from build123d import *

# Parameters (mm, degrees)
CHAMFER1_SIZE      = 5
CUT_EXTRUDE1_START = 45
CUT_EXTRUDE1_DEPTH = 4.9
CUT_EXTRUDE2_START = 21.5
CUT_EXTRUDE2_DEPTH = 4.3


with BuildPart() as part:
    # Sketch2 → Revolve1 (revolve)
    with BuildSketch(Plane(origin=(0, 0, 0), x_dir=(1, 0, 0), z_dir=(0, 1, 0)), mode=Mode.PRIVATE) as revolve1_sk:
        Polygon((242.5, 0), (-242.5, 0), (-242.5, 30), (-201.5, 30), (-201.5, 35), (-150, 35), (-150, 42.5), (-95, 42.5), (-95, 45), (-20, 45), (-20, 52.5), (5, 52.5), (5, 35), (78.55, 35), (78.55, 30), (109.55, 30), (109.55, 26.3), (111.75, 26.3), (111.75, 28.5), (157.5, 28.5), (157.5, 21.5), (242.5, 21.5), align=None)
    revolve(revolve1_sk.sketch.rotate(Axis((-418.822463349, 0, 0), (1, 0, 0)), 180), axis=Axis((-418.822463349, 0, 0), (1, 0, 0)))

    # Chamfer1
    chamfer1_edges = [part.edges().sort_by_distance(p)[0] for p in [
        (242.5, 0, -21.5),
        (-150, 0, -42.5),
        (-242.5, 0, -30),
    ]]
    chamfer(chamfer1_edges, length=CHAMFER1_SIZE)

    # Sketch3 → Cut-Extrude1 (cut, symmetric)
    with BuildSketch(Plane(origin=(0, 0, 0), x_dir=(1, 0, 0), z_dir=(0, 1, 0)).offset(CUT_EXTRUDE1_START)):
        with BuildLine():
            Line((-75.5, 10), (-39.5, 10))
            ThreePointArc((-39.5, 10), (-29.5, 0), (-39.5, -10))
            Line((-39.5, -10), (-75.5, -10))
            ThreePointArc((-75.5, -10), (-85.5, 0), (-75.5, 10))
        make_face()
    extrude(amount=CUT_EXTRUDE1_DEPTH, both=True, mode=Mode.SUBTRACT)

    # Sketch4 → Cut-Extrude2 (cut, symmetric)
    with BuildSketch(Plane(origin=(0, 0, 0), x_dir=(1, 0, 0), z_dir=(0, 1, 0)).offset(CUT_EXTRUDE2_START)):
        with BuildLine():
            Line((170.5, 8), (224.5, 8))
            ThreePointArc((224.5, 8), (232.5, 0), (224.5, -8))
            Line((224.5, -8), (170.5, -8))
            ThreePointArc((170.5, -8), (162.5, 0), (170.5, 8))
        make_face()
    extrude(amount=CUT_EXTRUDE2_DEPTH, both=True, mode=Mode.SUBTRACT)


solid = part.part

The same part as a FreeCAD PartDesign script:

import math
import FreeCAD as App
import Part
import Sketcher

V = App.Vector


def edges_at(feature, points):
    """Names of the edges that pass closest to the given points."""
    edges = feature.Shape.Edges
    near = lambda p: min(range(len(edges)), key=lambda i: edges[i].distToShape(Part.Vertex(*p))[0])
    return sorted({f"Edge{near(p) + 1}" for p in points})


def add_polygon(sketch, points):
    """Adds a closed chain of lines whose ends are joined by coincident constraints."""
    first, n = sketch.GeometryCount, len(points)
    for a, b in zip(points, points[1:] + points[:1]):
        sketch.addGeometry(Part.LineSegment(App.Vector(*a, 0), App.Vector(*b, 0)), False)
    for i in range(n):
        sketch.addConstraint(Sketcher.Constraint("Coincident", first + i, 2, first + (i + 1) % n, 1))

doc = App.newDocument("Part")
body = doc.addObject("PartDesign::Body", "Body")

# Sketch on XZ plane
sketch1 = body.newObject("Sketcher::SketchObject", "Sketch")
sketch1.AttachmentSupport = (doc.getObject("XZ_Plane"), [""])
sketch1.MapMode = "FlatFace"
add_polygon(sketch1, [(-242.5, 0), (242.5, 0), (242.5, -21.5), (157.5, -21.5), (157.5, -28.5), (111.8, -28.5), (111.8, -26.3), (109.5, -26.3), (109.5, -30), (78.5, -30), (78.5, -35), (5, -35), (5, -52.5), (-20, -52.5), (-20, -45), (-95, -45), (-95, -42.5), (-150, -42.5), (-150, -35), (-201.5, -35), (-201.5, -30), (-242.5, -30)])  # lines 0-21
sketch1.addConstraint([
    Sketcher.Constraint("Horizontal", 0),
    Sketcher.Constraint("Vertical", 1),
    Sketcher.Constraint("Horizontal", 2),
    Sketcher.Constraint("Vertical", 3),
    Sketcher.Constraint("Horizontal", 4),
    Sketcher.Constraint("Vertical", 5),
    Sketcher.Constraint("Horizontal", 6),
    Sketcher.Constraint("Vertical", 7),
    Sketcher.Constraint("Horizontal", 8),
    Sketcher.Constraint("Vertical", 9),
    Sketcher.Constraint("Horizontal", 10),
    Sketcher.Constraint("Vertical", 11),
    Sketcher.Constraint("Horizontal", 12),
    Sketcher.Constraint("Vertical", 13),
    Sketcher.Constraint("Horizontal", 14),
    Sketcher.Constraint("Vertical", 15),
    Sketcher.Constraint("Horizontal", 16),
    Sketcher.Constraint("Vertical", 17),
    Sketcher.Constraint("Horizontal", 18),
    Sketcher.Constraint("Vertical", 19),
    Sketcher.Constraint("Horizontal", 20),
    Sketcher.Constraint("Vertical", 21),
    Sketcher.Constraint("Symmetric", 0, 2, 21, 2, -1, 1),
    Sketcher.Constraint("Horizontal", 10, 2, 17, 2),
    Sketcher.Constraint("Horizontal", 8, 2, 19, 2),
    Sketcher.Constraint("Equal", 6, 5),
    Sketcher.Constraint("Equal", 13, 17),
    Sketcher.Constraint("DistanceX", 0, 1, 0, 2, 485.0),
    Sketcher.Constraint("DistanceX", 2, 2, 2, 1, 85.0),
    Sketcher.Constraint("DistanceX", 8, 2, 8, 1, 31.0),
    Sketcher.Constraint("DistanceX", 12, 2, 12, 1, 25.0),
    Sketcher.Constraint("DistanceX", 14, 2, 14, 1, 75.0),
    Sketcher.Constraint("DistanceX", 16, 2, 16, 1, 55.0),
    Sketcher.Constraint("DistanceX", 20, 2, 20, 1, 41.0),
    Sketcher.Constraint("DistanceY", 3, 2, 3, 1, 7.0),
    Sketcher.Constraint("DistanceY", 9, 2, 9, 1, 5.0),
    Sketcher.Constraint("DistanceY", 21, 1, 21, 2, 30.0),
    Sketcher.Constraint("DistanceX", 6, 2, 6, 1, 2.2),
    Sketcher.Constraint("DistanceX", 18, 2, 18, 1, 51.5),
    Sketcher.Constraint("DistanceY", 1, 2, 1, 1, 21.5),
    Sketcher.Constraint("DistanceY", 11, 2, 11, 1, 17.5),
    Sketcher.Constraint("DistanceY", 13, 1, 13, 2, 7.5),
    Sketcher.Constraint("DistanceX", 4, 2, 4, 1, 45.75),
])
revolution = body.newObject("PartDesign::Revolution", "Revolution")
revolution.Profile = sketch1
revolution.ReferenceAxis = (sketch1, ["H_Axis"])
revolution.Angle = 360
doc.recompute()

chamfer = body.newObject("PartDesign::Chamfer", "Chamfer")
chamfer.Base = (revolution, edges_at(revolution, [(242.5, 0, -21.5), (-150, 0, -42.5), (-242.5, 0, -30)]))
chamfer.Size = 5

# Sketch on XZ plane
sketch2 = body.newObject("Sketcher::SketchObject", "Sketch001")
sketch2.AttachmentSupport = (doc.getObject("XZ_Plane"), [""])
sketch2.MapMode = "FlatFace"
sketch2.AttachmentOffset = App.Placement(V(0, 0, -45), App.Rotation())
sketch2.addGeometry([
    Part.LineSegment(V(-40, -10, 0), V(-76, -10, 0)),
    Part.ArcOfCircle(Part.Circle(V(-76, 0, 0), V(0, 0, 1), 10), math.radians(90), math.radians(270)),
    Part.LineSegment(V(-76, 10, 0), V(-40, 10, 0)),
    Part.ArcOfCircle(Part.Circle(V(-40, 0, 0), V(0, 0, 1), 10), math.radians(-90), math.radians(90)),
], False)
sketch2.addConstraint([
    Sketcher.Constraint("Tangent", 0, 2, 1, 2),
    Sketcher.Constraint("Tangent", 1, 1, 2, 1),
    Sketcher.Constraint("Tangent", 2, 2, 3, 2),
    Sketcher.Constraint("Tangent", 3, 1, 0, 1),
    Sketcher.Constraint("Horizontal", 0),
    Sketcher.Constraint("Horizontal", 2),
    Sketcher.Constraint("PointOnObject", 1, 3, -1),
    Sketcher.Constraint("Radius", 1, 10.0),
    Sketcher.Constraint("DistanceX", 0, 2, 0, 1, 36.0),
    Sketcher.Constraint("DistanceX", 1, 3, -1, 1, 75.5),
])
pocket1 = body.newObject("PartDesign::Pocket", "Pocket")
pocket1.Profile = sketch2
pocket1.Length = 9.8
pocket1.Midplane = True

# Sketch on XZ plane
sketch3 = body.newObject("Sketcher::SketchObject", "Sketch002")
sketch3.AttachmentSupport = (doc.getObject("XZ_Plane"), [""])
sketch3.MapMode = "FlatFace"
sketch3.AttachmentOffset = App.Placement(V(0, 0, -21.5), App.Rotation())
sketch3.addGeometry([
    Part.LineSegment(V(224, -8, 0), V(170, -8, 0)),
    Part.ArcOfCircle(Part.Circle(V(170, 0, 0), V(0, 0, 1), 8), math.radians(90), math.radians(270)),
    Part.LineSegment(V(170, 8, 0), V(224, 8, 0)),
    Part.ArcOfCircle(Part.Circle(V(224, 0, 0), V(0, 0, 1), 8), math.radians(-90), math.radians(90)),
], False)
sketch3.addConstraint([
    Sketcher.Constraint("Tangent", 0, 2, 1, 2),
    Sketcher.Constraint("Tangent", 1, 1, 2, 1),
    Sketcher.Constraint("Tangent", 2, 2, 3, 2),
    Sketcher.Constraint("Tangent", 3, 1, 0, 1),
    Sketcher.Constraint("Horizontal", 0),
    Sketcher.Constraint("Horizontal", 2),
    Sketcher.Constraint("PointOnObject", 1, 3, -1),
    Sketcher.Constraint("Radius", 1, 8.0),
    Sketcher.Constraint("DistanceX", 0, 2, 0, 1, 54.0),
    Sketcher.Constraint("DistanceX", -1, 1, 1, 3, 170.5),
])
pocket2 = body.newObject("PartDesign::Pocket", "Pocket001")
pocket2.Profile = sketch3
pocket2.Length = 8.6
pocket2.Midplane = True

doc.recompute()
